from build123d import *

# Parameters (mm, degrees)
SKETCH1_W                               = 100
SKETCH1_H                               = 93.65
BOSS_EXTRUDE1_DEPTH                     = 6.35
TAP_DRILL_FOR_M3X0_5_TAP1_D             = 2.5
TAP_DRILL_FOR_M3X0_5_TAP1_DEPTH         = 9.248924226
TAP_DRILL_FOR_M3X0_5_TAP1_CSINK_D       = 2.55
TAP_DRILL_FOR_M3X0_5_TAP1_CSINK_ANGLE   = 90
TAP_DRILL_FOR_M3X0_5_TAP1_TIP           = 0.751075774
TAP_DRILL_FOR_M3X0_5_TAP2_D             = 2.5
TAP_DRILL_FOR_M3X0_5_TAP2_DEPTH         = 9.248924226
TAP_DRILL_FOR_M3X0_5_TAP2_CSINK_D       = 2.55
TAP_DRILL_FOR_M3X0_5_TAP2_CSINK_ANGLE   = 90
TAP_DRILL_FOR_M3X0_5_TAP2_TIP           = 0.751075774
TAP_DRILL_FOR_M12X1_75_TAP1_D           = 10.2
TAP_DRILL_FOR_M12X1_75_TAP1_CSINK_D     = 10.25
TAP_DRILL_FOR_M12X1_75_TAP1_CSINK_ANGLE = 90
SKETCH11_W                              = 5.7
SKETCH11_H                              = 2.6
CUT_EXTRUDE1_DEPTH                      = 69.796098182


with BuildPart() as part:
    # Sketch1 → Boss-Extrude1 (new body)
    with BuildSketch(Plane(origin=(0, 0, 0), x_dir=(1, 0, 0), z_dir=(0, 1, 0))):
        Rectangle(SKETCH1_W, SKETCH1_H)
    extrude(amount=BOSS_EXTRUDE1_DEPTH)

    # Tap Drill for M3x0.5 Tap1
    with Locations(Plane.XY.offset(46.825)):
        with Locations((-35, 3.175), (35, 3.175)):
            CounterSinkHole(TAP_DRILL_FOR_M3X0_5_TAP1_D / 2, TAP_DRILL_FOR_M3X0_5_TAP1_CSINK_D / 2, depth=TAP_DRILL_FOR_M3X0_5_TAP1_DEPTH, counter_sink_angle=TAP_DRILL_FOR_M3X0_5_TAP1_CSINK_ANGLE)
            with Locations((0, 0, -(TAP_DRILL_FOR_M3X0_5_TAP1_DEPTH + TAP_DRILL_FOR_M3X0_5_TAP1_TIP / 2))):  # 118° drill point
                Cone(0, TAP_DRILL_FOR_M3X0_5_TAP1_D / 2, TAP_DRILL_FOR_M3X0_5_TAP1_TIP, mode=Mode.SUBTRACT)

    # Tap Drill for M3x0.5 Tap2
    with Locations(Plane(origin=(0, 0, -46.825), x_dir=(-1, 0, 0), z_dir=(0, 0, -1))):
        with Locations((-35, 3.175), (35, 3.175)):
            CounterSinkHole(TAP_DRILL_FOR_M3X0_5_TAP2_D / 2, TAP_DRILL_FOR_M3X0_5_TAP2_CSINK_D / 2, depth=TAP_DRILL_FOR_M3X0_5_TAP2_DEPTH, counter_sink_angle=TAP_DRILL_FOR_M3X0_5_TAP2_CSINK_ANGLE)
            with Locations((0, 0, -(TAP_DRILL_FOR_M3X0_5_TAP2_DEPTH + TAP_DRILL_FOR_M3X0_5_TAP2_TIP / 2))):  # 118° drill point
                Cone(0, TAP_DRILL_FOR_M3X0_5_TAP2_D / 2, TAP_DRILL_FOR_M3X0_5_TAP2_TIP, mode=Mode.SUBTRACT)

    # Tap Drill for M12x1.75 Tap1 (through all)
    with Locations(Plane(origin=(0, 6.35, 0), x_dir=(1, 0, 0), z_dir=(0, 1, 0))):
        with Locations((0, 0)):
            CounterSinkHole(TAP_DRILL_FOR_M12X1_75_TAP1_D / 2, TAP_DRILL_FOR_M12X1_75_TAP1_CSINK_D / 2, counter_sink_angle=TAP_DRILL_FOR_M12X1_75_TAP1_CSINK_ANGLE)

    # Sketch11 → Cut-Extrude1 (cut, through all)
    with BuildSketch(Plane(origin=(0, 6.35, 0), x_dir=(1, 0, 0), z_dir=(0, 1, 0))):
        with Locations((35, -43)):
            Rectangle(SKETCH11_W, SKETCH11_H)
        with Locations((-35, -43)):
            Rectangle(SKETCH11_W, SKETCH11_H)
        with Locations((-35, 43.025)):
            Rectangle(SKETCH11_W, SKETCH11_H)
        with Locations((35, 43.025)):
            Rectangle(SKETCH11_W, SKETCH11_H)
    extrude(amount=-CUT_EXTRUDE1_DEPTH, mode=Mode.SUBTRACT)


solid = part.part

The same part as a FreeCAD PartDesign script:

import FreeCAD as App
import Part
import Sketcher
from FreeCAD import Vector
Q = App.Units.Quantity

doc = App.newDocument("Part")
params = doc.addObject("Spreadsheet::Sheet", "Params")
for row, (alias, value) in enumerate([
    ("sketch1_width", "100 mm"),
    ("sketch1_height", "93.65 mm"),
    ("pad1_length", "6.35 mm"),
    ("sketch2_diameter", "2.5 mm"),
    ("hole_diameter", "2.5 mm"),
    ("hole_depth", "9.248924 mm"),
    ("hole_csink_diameter", "2.55 mm"),
    ("sketch3_diameter", "2.5 mm"),
    ("hole2_diameter", "2.5 mm"),
    ("hole2_depth", "9.248924 mm"),
    ("hole2_csink_diameter", "2.55 mm"),
    ("sketch4_diameter", "10.2 mm"),
    ("hole3_diameter", "10.2 mm"),
    ("hole3_csink_diameter", "10.25 mm"),
    ("sketch5_width", "5.7 mm"),
    ("sketch5_height", "2.6 mm"),
], start=1):
    params.set(f"A{row}", alias)
    params.set(f"B{row}", "=" + value)
    params.setAlias(f"B{row}", alias)

body = doc.addObject("PartDesign::Body", "Body")

# Sketch on XZ plane
sketch1 = doc.addObject("Sketcher::SketchObject", "Sketch")
body.addObject(sketch1)
sketch1.AttachmentSupport = (doc.XZ_Plane, [""])
sketch1.MapMode = "FlatFace"
sketch1.addGeometry([
    Part.LineSegment(Vector(-50, -46.825, 0), Vector(-50, 46.825, 0)),
    Part.LineSegment(Vector(-50, 46.825, 0), Vector(50, 46.825, 0)),
    Part.LineSegment(Vector(50, 46.825, 0), Vector(50, -46.825, 0)),
    Part.LineSegment(Vector(50, -46.825, 0), Vector(-50, -46.825, 0)),
], False)
sketch1.addConstraint([
    Sketcher.Constraint("Coincident", 0, 2, 1, 1),
    Sketcher.Constraint("Coincident", 1, 2, 2, 1),
    Sketcher.Constraint("Coincident", 2, 2, 3, 1),
    Sketcher.Constraint("Coincident", 3, 2, 0, 1),
    Sketcher.Constraint("Vertical", 0),
    Sketcher.Constraint("Horizontal", 1),
    Sketcher.Constraint("Vertical", 2),
    Sketcher.Constraint("Horizontal", 3),
    Sketcher.Constraint("Symmetric", 0, 2, 2, 2, -1, 1),
    Sketcher.Constraint("DistanceX", 1, 1, 1, 2, Q("100 mm")),
    Sketcher.Constraint("DistanceY", 0, 1, 0, 2, Q("93.65 mm")),
])
sketch1.setExpression("Constraints[9]", "Params.sketch1_width")
sketch1.setExpression("Constraints[10]", "Params.sketch1_height")
pad1 = doc.addObject("PartDesign::Pad", "Pad")
body.addObject(pad1)
pad1.Profile = sketch1
pad1.setExpression("Length", "Params.pad1_length")
pad1.Reversed = True

# Sketch on XY plane
sketch2 = doc.addObject("Sketcher::SketchObject", "Sketch001")
body.addObject(sketch2)
sketch2.AttachmentSupport = (doc.XY_Plane, [""])
sketch2.MapMode = "FlatFace"
sketch2.AttachmentOffset = App.Placement(Vector(0, 0, 46.825), App.Rotation())
sketch2.addGeometry([
    Part.Circle(Vector(-35, 3.175, 0), Vector(0, 0, 1), 1.25),
    Part.Circle(Vector(35, 3.175, 0), Vector(0, 0, 1), 1.25),
], False)
sketch2.addConstraint([
    Sketcher.Constraint("Equal", 0, 1),
    Sketcher.Constraint("Symmetric", 0, 3, 1, 3, -2),
    Sketcher.Constraint("Diameter", 0, Q("2.5 mm")),
    Sketcher.Constraint("DistanceX", 0, 3, -1, 1, Q("35 mm")),
    Sketcher.Constraint("DistanceY", -1, 1, 0, 3, Q("3.175 mm")),
])
sketch2.setExpression("Constraints[2]", "Params.sketch2_diameter")
doc.recompute()
hole = doc.addObject("PartDesign::Hole", "Hole")
body.addObject(hole)
hole.Profile = sketch2
hole.ThreadType = "None"
hole.setExpression("Diameter", "Params.hole_diameter")
hole.DepthType = "Dimension"
hole.setExpression("Depth", "Params.hole_depth")
hole.DrillPoint = "Angled"
hole.DrillPointAngle = 118
hole.HoleCutType = "Countersink"
hole.setExpression("HoleCutDiameter", "Params.hole_csink_diameter")
hole.HoleCutCountersinkAngle = 90

# Sketch on XY plane
sketch3 = doc.addObject("Sketcher::SketchObject", "Sketch002")
body.addObject(sketch3)
sketch3.AttachmentSupport = (doc.XY_Plane, [""])
sketch3.MapMode = "FlatFace"
sketch3.AttachmentOffset = App.Placement(Vector(0, 0, -46.825), App.Rotation())
sketch3.addGeometry([
    Part.Circle(Vector(35, 3.175, 0), Vector(0, 0, 1), 1.25),
    Part.Circle(Vector(-35, 3.175, 0), Vector(0, 0, 1), 1.25),
], False)
sketch3.addConstraint([
    Sketcher.Constraint("Equal", 0, 1),
    Sketcher.Constraint("Symmetric", 0, 3, 1, 3, -2),
    Sketcher.Constraint("Diameter", 0, Q("2.5 mm")),
    Sketcher.Constraint("DistanceX", -1, 1, 0, 3, Q("35 mm")),
    Sketcher.Constraint("DistanceY", -1, 1, 0, 3, Q("3.175 mm")),
])
sketch3.setExpression("Constraints[2]", "Params.sketch3_diameter")
doc.recompute()
hole2 = doc.addObject("PartDesign::Hole", "Hole001")
body.addObject(hole2)
hole2.Profile = sketch3
hole2.ThreadType = "None"
hole2.setExpression("Diameter", "Params.hole2_diameter")
hole2.DepthType = "Dimension"
hole2.setExpression("Depth", "Params.hole2_depth")
hole2.DrillPoint = "Angled"
hole2.DrillPointAngle = 118
hole2.HoleCutType = "Countersink"
hole2.setExpression("HoleCutDiameter", "Params.hole2_csink_diameter")
hole2.HoleCutCountersinkAngle = 90
hole2.Reversed = True

# Sketch on XZ plane
sketch4 = doc.addObject("Sketcher::SketchObject", "Sketch003")
body.addObject(sketch4)
sketch4.AttachmentSupport = (doc.XZ_Plane, [""])
sketch4.MapMode = "FlatFace"
sketch4.AttachmentOffset = App.Placement(Vector(0, 0, -6.35), App.Rotation())
sketch4.addGeometry(Part.Circle(Vector(0, 0, 0), Vector(0, 0, 1), 5.1), False)
sketch4.addConstraint([
    Sketcher.Constraint("Coincident", 0, 3, -1, 1),
    Sketcher.Constraint("Diameter", 0, Q("10.2 mm")),
])
sketch4.setExpression("Constraints[1]", "Params.sketch4_diameter")
doc.recompute()
hole3 = doc.addObject("PartDesign::Hole", "Hole002")
body.addObject(hole3)
hole3.Profile = sketch4
hole3.ThreadType = "None"
hole3.setExpression("Diameter", "Params.hole3_diameter")
hole3.DepthType = "ThroughAll"
hole3.HoleCutType = "Countersink"
hole3.setExpression("HoleCutDiameter", "Params.hole3_csink_diameter")
hole3.HoleCutCountersinkAngle = 90
hole3.Reversed = True

# Sketch on XZ plane
sketch5 = doc.addObject("Sketcher::SketchObject", "Sketch004")
body.addObject(sketch5)
sketch5.AttachmentSupport = (doc.XZ_Plane, [""])
sketch5.MapMode = "FlatFace"
sketch5.AttachmentOffset = App.Placement(Vector(0, 0, -6.35), App.Rotation())
sketch5.addGeometry([
    Part.LineSegment(Vector(32.15, 41.7, 0), Vector(32.15, 44.3, 0)),  # 0
    Part.LineSegment(Vector(32.15, 44.3, 0), Vector(37.85, 44.3, 0)),  # 1
    Part.LineSegment(Vector(37.85, 44.3, 0), Vector(37.85, 41.7, 0)),  # 2
    Part.LineSegment(Vector(37.85, 41.7, 0), Vector(32.15, 41.7, 0)),  # 3
    Part.LineSegment(Vector(-37.85, 41.7, 0), Vector(-37.85, 44.3, 0)),  # 4
    Part.LineSegment(Vector(-37.85, 44.3, 0), Vector(-32.15, 44.3, 0)),  # 5
    Part.LineSegment(Vector(-32.15, 44.3, 0), Vector(-32.15, 41.7, 0)),  # 6
    Part.LineSegment(Vector(-32.15, 41.7, 0), Vector(-37.85, 41.7, 0)),  # 7
    Part.LineSegment(Vector(-37.85, -44.325, 0), Vector(-37.85, -41.725, 0)),  # 8
    Part.LineSegment(Vector(-37.85, -41.725, 0), Vector(-32.15, -41.725, 0)),  # 9
    Part.LineSegment(Vector(-32.15, -41.725, 0), Vector(-32.15, -44.325, 0)),  # 10
    Part.LineSegment(Vector(-32.15, -44.325, 0), Vector(-37.85, -44.325, 0)),  # 11
    Part.LineSegment(Vector(32.15, -44.325, 0), Vector(32.15, -41.725, 0)),  # 12
    Part.LineSegment(Vector(32.15, -41.725, 0), Vector(37.85, -41.725, 0)),  # 13
    Part.LineSegment(Vector(37.85, -41.725, 0), Vector(37.85, -44.325, 0)),  # 14
    Part.LineSegment(Vector(37.85, -44.325, 0), Vector(32.15, -44.325, 0)),  # 15
], False)
sketch5.addConstraint([
    Sketcher.Constraint("Coincident", 0, 2, 1, 1),
    Sketcher.Constraint("Coincident", 1, 2, 2, 1),
    Sketcher.Constraint("Coincident", 2, 2, 3, 1),
    Sketcher.Constraint("Coincident", 3, 2, 0, 1),
    Sketcher.Constraint("Coincident", 4, 2, 5, 1),
    Sketcher.Constraint("Coincident", 5, 2, 6, 1),
    Sketcher.Constraint("Coincident", 6, 2, 7, 1),
    Sketcher.Constraint("Coincident", 7, 2, 4, 1),
    Sketcher.Constraint("Coincident", 8, 2, 9, 1),
    Sketcher.Constraint("Coincident", 9, 2, 10, 1),
    Sketcher.Constraint("Coincident", 10, 2, 11, 1),
    Sketcher.Constraint("Coincident", 11, 2, 8, 1),
    Sketcher.Constraint("Coincident", 12, 2, 13, 1),
    Sketcher.Constraint("Coincident", 13, 2, 14, 1),
    Sketcher.Constraint("Coincident", 14, 2, 15, 1),
    Sketcher.Constraint("Coincident", 15, 2, 12, 1),
    Sketcher.Constraint("Vertical", 0),
    Sketcher.Constraint("Horizontal", 1),
    Sketcher.Constraint("Vertical", 2),
    Sketcher.Constraint("Horizontal", 3),
    Sketcher.Constraint("Vertical", 4),
    Sketcher.Constraint("Horizontal", 5),
    Sketcher.Constraint("Vertical", 6),
    Sketcher.Constraint("Horizontal", 7),
    Sketcher.Constraint("Vertical", 8),
    Sketcher.Constraint("Horizontal", 9),
    Sketcher.Constraint("Vertical", 10),
    Sketcher.Constraint("Horizontal", 11),
    Sketcher.Constraint("Vertical", 12),
    Sketcher.Constraint("Horizontal", 13),
    Sketcher.Constraint("Vertical", 14),
    Sketcher.Constraint("Horizontal", 15),
    Sketcher.Constraint("Symmetric", 1, 2, 4, 2, -2),
    Sketcher.Constraint("Symmetric", 3, 2, 6, 2, -2),
    Sketcher.Constraint("Symmetric", 9, 2, 12, 2, -2),
    Sketcher.Constraint("Symmetric", 11, 2, 14, 2, -2),
    Sketcher.Constraint("Vertical", 7, 2, 8, 2),
    Sketcher.Constraint("Vertical", 6, 2, 9, 2),
    Sketcher.Constraint("Equal", 6, 8),
    Sketcher.Constraint("DistanceX", 1, 1, 1, 2, Q("5.7 mm")),
    Sketcher.Constraint("DistanceY", 0, 1, 0, 2, Q("2.6 mm")),
    Sketcher.Constraint("DistanceX", 4, 2, 0, 2, Q("70 mm")),
    Sketcher.Constraint("DistanceY", -1, 1, 0, 2, Q("44.3 mm")),
    Sketcher.Constraint("DistanceY", 8, 2, -1, 1, Q("41.725 mm")),
])
sketch5.setExpression("Constraints[39]", "Params.sketch5_width")
sketch5.setExpression("Constraints[40]", "Params.sketch5_height")
pocket1 = doc.addObject("PartDesign::Pocket", "Pocket")
body.addObject(pocket1)
pocket1.Profile = sketch5
pocket1.Type = "ThroughAll"
pocket1.Reversed = True

doc.recompute()
